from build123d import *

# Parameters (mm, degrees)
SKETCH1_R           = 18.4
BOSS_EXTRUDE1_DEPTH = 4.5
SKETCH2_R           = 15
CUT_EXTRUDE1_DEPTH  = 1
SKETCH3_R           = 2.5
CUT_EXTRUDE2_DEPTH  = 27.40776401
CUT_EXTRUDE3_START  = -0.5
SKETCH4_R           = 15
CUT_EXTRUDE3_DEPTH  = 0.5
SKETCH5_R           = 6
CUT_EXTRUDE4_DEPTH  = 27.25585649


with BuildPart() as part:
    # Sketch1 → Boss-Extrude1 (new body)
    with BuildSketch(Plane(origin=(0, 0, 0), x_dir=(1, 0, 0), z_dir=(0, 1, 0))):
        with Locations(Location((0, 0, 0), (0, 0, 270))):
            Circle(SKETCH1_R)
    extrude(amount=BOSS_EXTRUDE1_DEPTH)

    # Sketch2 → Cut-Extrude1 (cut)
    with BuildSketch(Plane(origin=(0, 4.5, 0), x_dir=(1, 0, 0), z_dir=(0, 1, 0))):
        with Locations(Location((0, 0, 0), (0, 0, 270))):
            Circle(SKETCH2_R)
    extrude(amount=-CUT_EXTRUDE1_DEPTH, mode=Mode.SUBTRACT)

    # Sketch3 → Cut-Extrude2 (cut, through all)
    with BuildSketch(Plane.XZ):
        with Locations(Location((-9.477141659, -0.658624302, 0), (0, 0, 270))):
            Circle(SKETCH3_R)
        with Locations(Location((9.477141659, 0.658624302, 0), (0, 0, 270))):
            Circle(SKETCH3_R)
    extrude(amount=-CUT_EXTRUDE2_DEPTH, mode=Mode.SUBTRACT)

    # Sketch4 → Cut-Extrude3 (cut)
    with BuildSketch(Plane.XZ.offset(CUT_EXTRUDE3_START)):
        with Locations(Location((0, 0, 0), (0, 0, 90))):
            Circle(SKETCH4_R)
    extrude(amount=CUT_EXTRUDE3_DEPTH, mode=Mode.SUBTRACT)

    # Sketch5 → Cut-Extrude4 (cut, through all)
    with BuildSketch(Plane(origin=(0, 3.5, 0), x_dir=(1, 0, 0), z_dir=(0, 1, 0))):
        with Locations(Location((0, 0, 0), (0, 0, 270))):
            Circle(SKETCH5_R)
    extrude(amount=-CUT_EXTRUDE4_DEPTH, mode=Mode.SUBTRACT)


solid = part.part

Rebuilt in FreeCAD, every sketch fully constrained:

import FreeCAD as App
import Part
import Sketcher
Q = App.Units.Quantity

doc = App.newDocument("Part")
body = doc.addObject("PartDesign::Body", "Body")

sketch1 = body.newObject("Sketcher::SketchObject", "Sketch")
sketch1.AttachmentSupport = (doc.getObject("XZ_Plane"), [""])
sketch1.MapMode = "FlatFace"
sketch1.addGeometry(Part.Circle(App.Vector(0, 0, 0), App.Vector(0, 0, 1), 18), False)
sketch1.addConstraint(Sketcher.Constraint("Coincident", 0, 3, -1, 1))
sketch1.addConstraint(Sketcher.Constraint("Diameter", 0, Q("36.8 mm")))
pad1 = body.newObject("PartDesign::Pad", "Pad")
pad1.Profile = sketch1
pad1.Length = 4.5
pad1.Reversed = True

sketch2 = body.newObject("Sketcher::SketchObject", "Sketch001")
sketch2.AttachmentSupport = (doc.getObject("XZ_Plane"), [""])
sketch2.MapMode = "FlatFace"
sketch2.AttachmentOffset = App.Placement(App.Vector(0, 0, -4.5), App.Rotation())
sketch2.addGeometry(Part.Circle(App.Vector(0, 0, 0), App.Vector(0, 0, 1), 15), False)
sketch2.addConstraint(Sketcher.Constraint("Coincident", 0, 3, -1, 1))
sketch2.addConstraint(Sketcher.Constraint("Diameter", 0, Q("30 mm")))
pocket1 = body.newObject("PartDesign::Pocket", "Pocket")
pocket1.Profile = sketch2
pocket1.Length = 1
pocket1.Reversed = True

sketch3 = body.newObject("Sketcher::SketchObject", "Sketch002")
sketch3.AttachmentSupport = (doc.getObject("XZ_Plane"), [""])
sketch3.MapMode = "FlatFace"
sketch3.addGeometry(Part.Circle(App.Vector(-9.5, -0.7, 0), App.Vector(0, 0, 1), 2.5), False)
sketch3.addGeometry(Part.Circle(App.Vector(9.5, 0.7, 0), App.Vector(0, 0, 1), 2.5), False)
sketch3.addConstraint(Sketcher.Constraint("Equal", 0, 1))
sketch3.addConstraint(Sketcher.Constraint("Symmetric", 0, 3, 1, 3, -1, 1))
sketch3.addConstraint(Sketcher.Constraint("Diameter", 0, Q("5 mm")))
sketch3.addConstraint(Sketcher.Constraint("DistanceX", 0, 3, -1, 1, Q("9.477142 mm")))
sketch3.addConstraint(Sketcher.Constraint("DistanceY", 0, 3, 1, 3, Q("1.317249 mm")))
pocket2 = body.newObject("PartDesign::Pocket", "Pocket001")
pocket2.Profile = sketch3
pocket2.Type = "ThroughAll"

sketch4 = body.newObject("Sketcher::SketchObject", "Sketch003")
sketch4.AttachmentSupport = (doc.getObject("XZ_Plane"), [""])
sketch4.MapMode = "FlatFace"
sketch4.AttachmentOffset = App.Placement(App.Vector(0, 0, -0.5), App.Rotation())
sketch4.addGeometry(Part.Circle(App.Vector(0, 0, 0), App.Vector(0, 0, 1), 15), False)
sketch4.addConstraint(Sketcher.Constraint("Coincident", 0, 3, -1, 1))
sketch4.addConstraint(Sketcher.Constraint("Diameter", 0, Q("30 mm")))
pocket3 = body.newObject("PartDesign::Pocket", "Pocket002")
pocket3.Profile = sketch4
pocket3.Length = 0.5
pocket3.Reversed = True

sketch5 = body.newObject("Sketcher::SketchObject", "Sketch004")
sketch5.AttachmentSupport = (doc.getObject("XZ_Plane"), [""])
sketch5.MapMode = "FlatFace"
sketch5.AttachmentOffset = App.Placement(App.Vector(0, 0, -3.5), App.Rotation())
sketch5.addGeometry(Part.Circle(App.Vector(0, 0, 0), App.Vector(0, 0, 1), 6), False)
sketch5.addConstraint(Sketcher.Constraint("Coincident", 0, 3, -1, 1))
sketch5.addConstraint(Sketcher.Constraint("Diameter", 0, Q("12 mm")))
pocket4 = body.newObject("PartDesign::Pocket", "Pocket003")
pocket4.Profile = sketch5
pocket4.Type = "ThroughAll"
pocket4.Reversed = True

doc.recompute()
